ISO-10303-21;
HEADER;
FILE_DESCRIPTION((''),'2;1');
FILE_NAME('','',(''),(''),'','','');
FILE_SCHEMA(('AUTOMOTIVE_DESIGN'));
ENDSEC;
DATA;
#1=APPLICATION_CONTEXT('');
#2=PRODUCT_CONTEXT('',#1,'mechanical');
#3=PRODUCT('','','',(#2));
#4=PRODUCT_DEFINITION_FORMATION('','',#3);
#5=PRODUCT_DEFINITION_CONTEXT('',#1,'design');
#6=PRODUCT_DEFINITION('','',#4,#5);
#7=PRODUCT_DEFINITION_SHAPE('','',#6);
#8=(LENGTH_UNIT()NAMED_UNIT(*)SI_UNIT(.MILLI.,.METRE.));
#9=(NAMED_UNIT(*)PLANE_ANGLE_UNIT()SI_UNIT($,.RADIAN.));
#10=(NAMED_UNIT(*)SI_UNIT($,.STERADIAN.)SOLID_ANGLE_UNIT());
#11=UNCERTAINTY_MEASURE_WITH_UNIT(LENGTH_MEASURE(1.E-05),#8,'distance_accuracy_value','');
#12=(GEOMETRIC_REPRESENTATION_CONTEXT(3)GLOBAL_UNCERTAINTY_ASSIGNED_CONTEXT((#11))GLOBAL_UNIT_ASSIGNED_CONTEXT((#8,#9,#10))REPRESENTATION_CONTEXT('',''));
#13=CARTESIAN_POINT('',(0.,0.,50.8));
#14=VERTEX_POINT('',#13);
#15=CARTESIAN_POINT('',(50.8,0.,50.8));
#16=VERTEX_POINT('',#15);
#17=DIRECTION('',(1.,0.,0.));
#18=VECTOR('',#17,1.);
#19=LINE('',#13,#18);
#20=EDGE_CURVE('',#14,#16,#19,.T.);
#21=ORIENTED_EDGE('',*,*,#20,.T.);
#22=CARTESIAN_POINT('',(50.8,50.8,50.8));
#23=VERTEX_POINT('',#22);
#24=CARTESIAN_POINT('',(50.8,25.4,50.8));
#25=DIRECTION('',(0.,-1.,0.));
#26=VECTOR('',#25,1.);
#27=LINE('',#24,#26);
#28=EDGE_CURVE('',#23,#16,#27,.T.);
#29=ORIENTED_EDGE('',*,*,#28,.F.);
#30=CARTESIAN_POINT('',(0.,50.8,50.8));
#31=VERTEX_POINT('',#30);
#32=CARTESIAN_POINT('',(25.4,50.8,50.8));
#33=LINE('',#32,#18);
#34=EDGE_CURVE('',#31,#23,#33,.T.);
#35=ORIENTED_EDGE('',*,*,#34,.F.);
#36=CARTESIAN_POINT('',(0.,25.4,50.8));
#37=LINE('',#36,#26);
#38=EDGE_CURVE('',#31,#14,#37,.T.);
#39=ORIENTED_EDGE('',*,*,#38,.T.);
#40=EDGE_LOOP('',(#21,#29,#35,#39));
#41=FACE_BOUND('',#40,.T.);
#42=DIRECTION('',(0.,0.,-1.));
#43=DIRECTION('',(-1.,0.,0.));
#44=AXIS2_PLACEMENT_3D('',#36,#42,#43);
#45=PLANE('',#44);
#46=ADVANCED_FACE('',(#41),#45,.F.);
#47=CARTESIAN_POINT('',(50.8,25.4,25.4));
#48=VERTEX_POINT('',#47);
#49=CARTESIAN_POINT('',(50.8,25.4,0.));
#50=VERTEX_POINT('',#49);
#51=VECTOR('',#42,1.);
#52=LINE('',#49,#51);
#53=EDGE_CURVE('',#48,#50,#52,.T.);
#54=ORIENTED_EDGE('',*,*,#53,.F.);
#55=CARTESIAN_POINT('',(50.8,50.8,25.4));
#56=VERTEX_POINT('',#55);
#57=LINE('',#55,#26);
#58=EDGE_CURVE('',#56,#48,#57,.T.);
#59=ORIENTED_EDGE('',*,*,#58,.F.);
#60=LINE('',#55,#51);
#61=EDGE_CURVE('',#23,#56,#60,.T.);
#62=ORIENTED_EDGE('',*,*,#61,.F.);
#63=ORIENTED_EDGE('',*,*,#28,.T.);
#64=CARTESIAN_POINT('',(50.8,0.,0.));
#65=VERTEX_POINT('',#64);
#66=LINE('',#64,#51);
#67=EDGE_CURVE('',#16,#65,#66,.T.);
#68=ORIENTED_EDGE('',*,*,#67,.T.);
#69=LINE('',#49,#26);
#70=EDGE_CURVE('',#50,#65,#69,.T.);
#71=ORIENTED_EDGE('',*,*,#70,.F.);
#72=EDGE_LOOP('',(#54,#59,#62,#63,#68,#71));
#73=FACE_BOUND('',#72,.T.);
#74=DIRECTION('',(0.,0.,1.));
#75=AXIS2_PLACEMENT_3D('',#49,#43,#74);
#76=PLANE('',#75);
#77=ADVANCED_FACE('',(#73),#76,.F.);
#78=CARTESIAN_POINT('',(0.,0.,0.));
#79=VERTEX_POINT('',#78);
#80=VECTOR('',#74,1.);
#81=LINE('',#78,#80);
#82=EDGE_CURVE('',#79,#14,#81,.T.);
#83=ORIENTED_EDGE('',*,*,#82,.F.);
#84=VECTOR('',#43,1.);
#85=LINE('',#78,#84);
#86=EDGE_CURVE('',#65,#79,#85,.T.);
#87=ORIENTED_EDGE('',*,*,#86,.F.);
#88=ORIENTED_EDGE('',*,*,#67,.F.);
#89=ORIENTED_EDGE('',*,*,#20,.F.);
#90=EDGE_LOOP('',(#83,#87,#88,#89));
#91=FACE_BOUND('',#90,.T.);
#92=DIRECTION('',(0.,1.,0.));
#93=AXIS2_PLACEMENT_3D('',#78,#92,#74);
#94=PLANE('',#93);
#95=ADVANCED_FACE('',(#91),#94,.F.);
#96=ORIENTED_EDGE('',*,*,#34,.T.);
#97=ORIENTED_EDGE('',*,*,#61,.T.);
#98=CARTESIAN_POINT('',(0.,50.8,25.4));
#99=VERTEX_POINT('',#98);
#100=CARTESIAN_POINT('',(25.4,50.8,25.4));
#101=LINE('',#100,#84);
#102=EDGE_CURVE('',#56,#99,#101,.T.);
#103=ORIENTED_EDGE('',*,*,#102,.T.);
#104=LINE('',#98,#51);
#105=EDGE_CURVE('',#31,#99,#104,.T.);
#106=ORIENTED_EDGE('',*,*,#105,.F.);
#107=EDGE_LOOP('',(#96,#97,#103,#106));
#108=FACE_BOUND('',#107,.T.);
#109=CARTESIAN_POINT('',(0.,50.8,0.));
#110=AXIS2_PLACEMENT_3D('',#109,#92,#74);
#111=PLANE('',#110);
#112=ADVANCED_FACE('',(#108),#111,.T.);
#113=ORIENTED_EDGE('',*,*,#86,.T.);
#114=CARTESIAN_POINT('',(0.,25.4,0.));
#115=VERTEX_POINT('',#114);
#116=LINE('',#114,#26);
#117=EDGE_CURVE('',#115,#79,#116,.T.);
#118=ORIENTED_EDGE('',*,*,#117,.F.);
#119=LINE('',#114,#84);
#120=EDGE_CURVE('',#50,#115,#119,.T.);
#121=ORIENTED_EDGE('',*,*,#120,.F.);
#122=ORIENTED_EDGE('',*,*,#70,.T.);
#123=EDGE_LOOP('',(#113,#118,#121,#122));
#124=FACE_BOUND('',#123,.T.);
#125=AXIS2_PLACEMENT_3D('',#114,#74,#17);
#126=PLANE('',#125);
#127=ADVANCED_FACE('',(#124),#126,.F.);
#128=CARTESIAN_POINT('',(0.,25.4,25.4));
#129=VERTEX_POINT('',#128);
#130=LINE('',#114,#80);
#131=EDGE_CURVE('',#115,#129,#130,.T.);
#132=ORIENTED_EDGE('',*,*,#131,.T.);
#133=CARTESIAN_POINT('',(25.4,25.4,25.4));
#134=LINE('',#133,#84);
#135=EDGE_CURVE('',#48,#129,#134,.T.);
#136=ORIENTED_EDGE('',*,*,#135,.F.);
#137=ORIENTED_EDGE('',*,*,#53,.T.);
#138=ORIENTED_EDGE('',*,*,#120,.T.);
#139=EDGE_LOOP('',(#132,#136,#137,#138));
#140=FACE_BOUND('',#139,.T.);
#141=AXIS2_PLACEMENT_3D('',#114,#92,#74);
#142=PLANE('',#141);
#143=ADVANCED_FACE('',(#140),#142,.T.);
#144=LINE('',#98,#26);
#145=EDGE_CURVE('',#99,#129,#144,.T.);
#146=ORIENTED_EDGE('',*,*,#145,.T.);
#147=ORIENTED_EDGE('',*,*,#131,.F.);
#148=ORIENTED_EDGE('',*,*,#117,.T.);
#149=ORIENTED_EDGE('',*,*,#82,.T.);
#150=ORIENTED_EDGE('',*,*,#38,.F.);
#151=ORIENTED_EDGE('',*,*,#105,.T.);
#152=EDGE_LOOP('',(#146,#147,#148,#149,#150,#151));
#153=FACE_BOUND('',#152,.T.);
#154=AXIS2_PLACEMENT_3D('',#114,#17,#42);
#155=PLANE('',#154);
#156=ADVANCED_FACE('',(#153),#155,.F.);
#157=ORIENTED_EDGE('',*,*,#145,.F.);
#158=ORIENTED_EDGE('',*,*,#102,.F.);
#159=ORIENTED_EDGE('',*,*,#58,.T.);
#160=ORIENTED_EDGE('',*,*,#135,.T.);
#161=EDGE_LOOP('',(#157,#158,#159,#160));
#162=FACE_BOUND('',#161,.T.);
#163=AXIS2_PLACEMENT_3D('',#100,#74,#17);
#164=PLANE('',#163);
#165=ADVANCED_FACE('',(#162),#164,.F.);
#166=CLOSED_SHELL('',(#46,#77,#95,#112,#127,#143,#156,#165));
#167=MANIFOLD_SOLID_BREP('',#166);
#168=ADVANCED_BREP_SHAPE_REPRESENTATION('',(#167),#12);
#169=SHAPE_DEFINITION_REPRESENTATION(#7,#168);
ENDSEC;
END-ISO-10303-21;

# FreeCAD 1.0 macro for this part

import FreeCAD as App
import Part
import Sketcher

V = App.Vector
Q = App.Units.Quantity


def add_polygon(sketch, points):
    """Adds a closed chain of lines whose ends are joined by coincident constraints."""
    first, n = sketch.GeometryCount, len(points)
    for a, b in zip(points, points[1:] + points[:1]):
        sketch.addGeometry(Part.LineSegment(App.Vector(*a, 0), App.Vector(*b, 0)), False)
    for i in range(n):
        sketch.addConstraint(Sketcher.Constraint("Coincident", first + i, 2, first + (i + 1) % n, 1))

doc = App.newDocument("Part")
body = doc.addObject("PartDesign::Body", "Body")

# Sketch on XZ plane
sketch1 = body.newObject("Sketcher::SketchObject", "Sketch")
sketch1.AttachmentSupport = (doc.getObject("XZ_Plane"), [""])
sketch1.MapMode = "FlatFace"
add_polygon(sketch1, [(0, 0), (0, 51), (51, 51), (51, 0)])  # lines 0-3
sketch1.addConstraint([
    Sketcher.Constraint("Vertical", 0),
    Sketcher.Constraint("Horizontal", 1),
    Sketcher.Constraint("Vertical", 2),
    Sketcher.Constraint("Horizontal", 3),
    Sketcher.Constraint("Coincident", 3, 2, -1, 1),
    Sketcher.Constraint("Equal", 3, 0),
    Sketcher.Constraint("DistanceX", 1, 1, 1, 2, Q("2 in")),
])
pad1 = body.newObject("PartDesign::Pad", "Pad")
pad1.Profile = sketch1
pad1.Length = Q("1 in")
pad1.Reversed = True

# Sketch on XZ plane
sketch2 = body.newObject("Sketcher::SketchObject", "Sketch001")
sketch2.AttachmentSupport = (doc.getObject("XZ_Plane"), [""])
sketch2.MapMode = "FlatFace"
sketch2.AttachmentOffset = App.Placement(V(0, 0, -1 * 25.4), App.Rotation())
add_polygon(sketch2, [(25, 25), (25, 51), (51, 51), (51, 25)])  # lines 0-3
sketch2.addConstraint([
    Sketcher.Constraint("Vertical", 0),
    Sketcher.Constraint("Horizontal", 1),
    Sketcher.Constraint("Vertical", 2),
    Sketcher.Constraint("Horizontal", 3),
    Sketcher.Constraint("Equal", 3, 0),
    Sketcher.Constraint("DistanceX", 1, 1, 1, 2, Q("1 in")),
    Sketcher.Constraint("DistanceX", -1, 1, 0, 2, Q("1 in")),
    Sketcher.Constraint("DistanceY", -1, 1, 0, 2, Q("2 in")),
])
pad2 = body.newObject("PartDesign::Pad", "Pad001")
pad2.Profile = sketch2
pad2.Length = Q("1 in")
pad2.Reversed = True

# Sketch on YZ plane
sketch3 = body.newObject("Sketcher::SketchObject", "Sketch002")
sketch3.AttachmentSupport = (doc.getObject("YZ_Plane"), [""])
sketch3.MapMode = "FlatFace"
sketch3.AttachmentOffset = App.Placement(V(0, 0, 1 * 25.4), App.Rotation())
add_polygon(sketch3, [(51, 25), (25, 25), (25, 51), (51, 51)])  # lines 0-3
sketch3.addConstraint([
    Sketcher.Constraint("Horizontal", 0),
    Sketcher.Constraint("Vertical", 1),
    Sketcher.Constraint("Horizontal", 2),
    Sketcher.Constraint("Vertical", 3),
    Sketcher.Constraint("Equal", 2, 1),
    Sketcher.Constraint("DistanceX", 0, 2, 0, 1, Q("1 in")),
    Sketcher.Constraint("DistanceX", -1, 1, 0, 2, Q("1 in")),
    Sketcher.Constraint("DistanceY", -1, 1, 0, 2, Q("1 in")),
])
pad3 = body.newObject("PartDesign::Pad", "Pad002")
pad3.Profile = sketch3
pad3.Length = Q("1 in")
pad3.Reversed = True

doc.recompute()
